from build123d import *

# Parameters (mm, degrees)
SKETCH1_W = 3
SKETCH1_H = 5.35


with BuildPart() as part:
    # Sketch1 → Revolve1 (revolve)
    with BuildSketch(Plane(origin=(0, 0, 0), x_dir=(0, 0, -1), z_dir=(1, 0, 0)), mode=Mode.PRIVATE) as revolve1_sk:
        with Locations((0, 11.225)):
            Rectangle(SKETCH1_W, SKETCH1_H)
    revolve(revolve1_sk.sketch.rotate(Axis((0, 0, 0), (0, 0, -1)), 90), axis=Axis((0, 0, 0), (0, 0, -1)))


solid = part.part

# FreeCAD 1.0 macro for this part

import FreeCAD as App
import Part
import Sketcher
from FreeCAD import Vector

doc = App.newDocument("Part")
params = doc.addObject("Spreadsheet::Sheet", "Params")
for row, (alias, value) in enumerate([
    ("sketch1_height", "3 mm"),
    ("sketch1_width", "5.35 mm"),
    ("revolution_angle", "360 deg"),
], start=1):
    params.set(f"A{row}", alias)
    params.set(f"B{row}", "=" + value)
    params.setAlias(f"B{row}", alias)

body = doc.addObject("PartDesign::Body", "Body")

# Sketch on YZ plane
sketch1 = body.newObject("Sketcher::SketchObject", "Sketch")
sketch1.AttachmentSupport = (doc.getObject("YZ_Plane"), [""])
sketch1.MapMode = "FlatFace"
sketch1.addGeometry([
    Part.LineSegment(Vector(13.9, 1.5, 0), Vector(8.6, 1.5, 0)),
    Part.LineSegment(Vector(8.6, 1.5, 0), Vector(8.6, -1.5, 0)),
    Part.LineSegment(Vector(8.6, -1.5, 0), Vector(13.9, -1.5, 0)),
    Part.LineSegment(Vector(13.9, -1.5, 0), Vector(13.9, 1.5, 0)),
], False)
sketch1.addConstraint([
    Sketcher.Constraint("Coincident", 0, 2, 1, 1),
    Sketcher.Constraint("Coincident", 1, 2, 2, 1),
    Sketcher.Constraint("Coincident", 2, 2, 3, 1),
    Sketcher.Constraint("Coincident", 3, 2, 0, 1),
    Sketcher.Constraint("Horizontal", 0),
    Sketcher.Constraint("Vertical", 1),
    Sketcher.Constraint("Horizontal", 2),
    Sketcher.Constraint("Vertical", 3),
    Sketcher.Constraint("DistanceY", 1, 2, 1, 1, 3.0),
    Sketcher.Constraint("DistanceX", 0, 2, 0, 1, 5.35),
    Sketcher.Constraint("DistanceY", -1, 1, 0, 2, 1.5),
    Sketcher.Constraint("DistanceX", -1, 1, 2, 2, 13.9),
])
sketch1.setExpression("Constraints[8]", "Params.sketch1_height")
sketch1.setExpression("Constraints[9]", "Params.sketch1_width")
revolution = body.newObject("PartDesign::Revolution", "Revolution")
revolution.Profile = sketch1
revolution.ReferenceAxis = (sketch1, ["V_Axis"])
revolution.setExpression("Angle", "Params.revolution_angle")

doc.recompute()
